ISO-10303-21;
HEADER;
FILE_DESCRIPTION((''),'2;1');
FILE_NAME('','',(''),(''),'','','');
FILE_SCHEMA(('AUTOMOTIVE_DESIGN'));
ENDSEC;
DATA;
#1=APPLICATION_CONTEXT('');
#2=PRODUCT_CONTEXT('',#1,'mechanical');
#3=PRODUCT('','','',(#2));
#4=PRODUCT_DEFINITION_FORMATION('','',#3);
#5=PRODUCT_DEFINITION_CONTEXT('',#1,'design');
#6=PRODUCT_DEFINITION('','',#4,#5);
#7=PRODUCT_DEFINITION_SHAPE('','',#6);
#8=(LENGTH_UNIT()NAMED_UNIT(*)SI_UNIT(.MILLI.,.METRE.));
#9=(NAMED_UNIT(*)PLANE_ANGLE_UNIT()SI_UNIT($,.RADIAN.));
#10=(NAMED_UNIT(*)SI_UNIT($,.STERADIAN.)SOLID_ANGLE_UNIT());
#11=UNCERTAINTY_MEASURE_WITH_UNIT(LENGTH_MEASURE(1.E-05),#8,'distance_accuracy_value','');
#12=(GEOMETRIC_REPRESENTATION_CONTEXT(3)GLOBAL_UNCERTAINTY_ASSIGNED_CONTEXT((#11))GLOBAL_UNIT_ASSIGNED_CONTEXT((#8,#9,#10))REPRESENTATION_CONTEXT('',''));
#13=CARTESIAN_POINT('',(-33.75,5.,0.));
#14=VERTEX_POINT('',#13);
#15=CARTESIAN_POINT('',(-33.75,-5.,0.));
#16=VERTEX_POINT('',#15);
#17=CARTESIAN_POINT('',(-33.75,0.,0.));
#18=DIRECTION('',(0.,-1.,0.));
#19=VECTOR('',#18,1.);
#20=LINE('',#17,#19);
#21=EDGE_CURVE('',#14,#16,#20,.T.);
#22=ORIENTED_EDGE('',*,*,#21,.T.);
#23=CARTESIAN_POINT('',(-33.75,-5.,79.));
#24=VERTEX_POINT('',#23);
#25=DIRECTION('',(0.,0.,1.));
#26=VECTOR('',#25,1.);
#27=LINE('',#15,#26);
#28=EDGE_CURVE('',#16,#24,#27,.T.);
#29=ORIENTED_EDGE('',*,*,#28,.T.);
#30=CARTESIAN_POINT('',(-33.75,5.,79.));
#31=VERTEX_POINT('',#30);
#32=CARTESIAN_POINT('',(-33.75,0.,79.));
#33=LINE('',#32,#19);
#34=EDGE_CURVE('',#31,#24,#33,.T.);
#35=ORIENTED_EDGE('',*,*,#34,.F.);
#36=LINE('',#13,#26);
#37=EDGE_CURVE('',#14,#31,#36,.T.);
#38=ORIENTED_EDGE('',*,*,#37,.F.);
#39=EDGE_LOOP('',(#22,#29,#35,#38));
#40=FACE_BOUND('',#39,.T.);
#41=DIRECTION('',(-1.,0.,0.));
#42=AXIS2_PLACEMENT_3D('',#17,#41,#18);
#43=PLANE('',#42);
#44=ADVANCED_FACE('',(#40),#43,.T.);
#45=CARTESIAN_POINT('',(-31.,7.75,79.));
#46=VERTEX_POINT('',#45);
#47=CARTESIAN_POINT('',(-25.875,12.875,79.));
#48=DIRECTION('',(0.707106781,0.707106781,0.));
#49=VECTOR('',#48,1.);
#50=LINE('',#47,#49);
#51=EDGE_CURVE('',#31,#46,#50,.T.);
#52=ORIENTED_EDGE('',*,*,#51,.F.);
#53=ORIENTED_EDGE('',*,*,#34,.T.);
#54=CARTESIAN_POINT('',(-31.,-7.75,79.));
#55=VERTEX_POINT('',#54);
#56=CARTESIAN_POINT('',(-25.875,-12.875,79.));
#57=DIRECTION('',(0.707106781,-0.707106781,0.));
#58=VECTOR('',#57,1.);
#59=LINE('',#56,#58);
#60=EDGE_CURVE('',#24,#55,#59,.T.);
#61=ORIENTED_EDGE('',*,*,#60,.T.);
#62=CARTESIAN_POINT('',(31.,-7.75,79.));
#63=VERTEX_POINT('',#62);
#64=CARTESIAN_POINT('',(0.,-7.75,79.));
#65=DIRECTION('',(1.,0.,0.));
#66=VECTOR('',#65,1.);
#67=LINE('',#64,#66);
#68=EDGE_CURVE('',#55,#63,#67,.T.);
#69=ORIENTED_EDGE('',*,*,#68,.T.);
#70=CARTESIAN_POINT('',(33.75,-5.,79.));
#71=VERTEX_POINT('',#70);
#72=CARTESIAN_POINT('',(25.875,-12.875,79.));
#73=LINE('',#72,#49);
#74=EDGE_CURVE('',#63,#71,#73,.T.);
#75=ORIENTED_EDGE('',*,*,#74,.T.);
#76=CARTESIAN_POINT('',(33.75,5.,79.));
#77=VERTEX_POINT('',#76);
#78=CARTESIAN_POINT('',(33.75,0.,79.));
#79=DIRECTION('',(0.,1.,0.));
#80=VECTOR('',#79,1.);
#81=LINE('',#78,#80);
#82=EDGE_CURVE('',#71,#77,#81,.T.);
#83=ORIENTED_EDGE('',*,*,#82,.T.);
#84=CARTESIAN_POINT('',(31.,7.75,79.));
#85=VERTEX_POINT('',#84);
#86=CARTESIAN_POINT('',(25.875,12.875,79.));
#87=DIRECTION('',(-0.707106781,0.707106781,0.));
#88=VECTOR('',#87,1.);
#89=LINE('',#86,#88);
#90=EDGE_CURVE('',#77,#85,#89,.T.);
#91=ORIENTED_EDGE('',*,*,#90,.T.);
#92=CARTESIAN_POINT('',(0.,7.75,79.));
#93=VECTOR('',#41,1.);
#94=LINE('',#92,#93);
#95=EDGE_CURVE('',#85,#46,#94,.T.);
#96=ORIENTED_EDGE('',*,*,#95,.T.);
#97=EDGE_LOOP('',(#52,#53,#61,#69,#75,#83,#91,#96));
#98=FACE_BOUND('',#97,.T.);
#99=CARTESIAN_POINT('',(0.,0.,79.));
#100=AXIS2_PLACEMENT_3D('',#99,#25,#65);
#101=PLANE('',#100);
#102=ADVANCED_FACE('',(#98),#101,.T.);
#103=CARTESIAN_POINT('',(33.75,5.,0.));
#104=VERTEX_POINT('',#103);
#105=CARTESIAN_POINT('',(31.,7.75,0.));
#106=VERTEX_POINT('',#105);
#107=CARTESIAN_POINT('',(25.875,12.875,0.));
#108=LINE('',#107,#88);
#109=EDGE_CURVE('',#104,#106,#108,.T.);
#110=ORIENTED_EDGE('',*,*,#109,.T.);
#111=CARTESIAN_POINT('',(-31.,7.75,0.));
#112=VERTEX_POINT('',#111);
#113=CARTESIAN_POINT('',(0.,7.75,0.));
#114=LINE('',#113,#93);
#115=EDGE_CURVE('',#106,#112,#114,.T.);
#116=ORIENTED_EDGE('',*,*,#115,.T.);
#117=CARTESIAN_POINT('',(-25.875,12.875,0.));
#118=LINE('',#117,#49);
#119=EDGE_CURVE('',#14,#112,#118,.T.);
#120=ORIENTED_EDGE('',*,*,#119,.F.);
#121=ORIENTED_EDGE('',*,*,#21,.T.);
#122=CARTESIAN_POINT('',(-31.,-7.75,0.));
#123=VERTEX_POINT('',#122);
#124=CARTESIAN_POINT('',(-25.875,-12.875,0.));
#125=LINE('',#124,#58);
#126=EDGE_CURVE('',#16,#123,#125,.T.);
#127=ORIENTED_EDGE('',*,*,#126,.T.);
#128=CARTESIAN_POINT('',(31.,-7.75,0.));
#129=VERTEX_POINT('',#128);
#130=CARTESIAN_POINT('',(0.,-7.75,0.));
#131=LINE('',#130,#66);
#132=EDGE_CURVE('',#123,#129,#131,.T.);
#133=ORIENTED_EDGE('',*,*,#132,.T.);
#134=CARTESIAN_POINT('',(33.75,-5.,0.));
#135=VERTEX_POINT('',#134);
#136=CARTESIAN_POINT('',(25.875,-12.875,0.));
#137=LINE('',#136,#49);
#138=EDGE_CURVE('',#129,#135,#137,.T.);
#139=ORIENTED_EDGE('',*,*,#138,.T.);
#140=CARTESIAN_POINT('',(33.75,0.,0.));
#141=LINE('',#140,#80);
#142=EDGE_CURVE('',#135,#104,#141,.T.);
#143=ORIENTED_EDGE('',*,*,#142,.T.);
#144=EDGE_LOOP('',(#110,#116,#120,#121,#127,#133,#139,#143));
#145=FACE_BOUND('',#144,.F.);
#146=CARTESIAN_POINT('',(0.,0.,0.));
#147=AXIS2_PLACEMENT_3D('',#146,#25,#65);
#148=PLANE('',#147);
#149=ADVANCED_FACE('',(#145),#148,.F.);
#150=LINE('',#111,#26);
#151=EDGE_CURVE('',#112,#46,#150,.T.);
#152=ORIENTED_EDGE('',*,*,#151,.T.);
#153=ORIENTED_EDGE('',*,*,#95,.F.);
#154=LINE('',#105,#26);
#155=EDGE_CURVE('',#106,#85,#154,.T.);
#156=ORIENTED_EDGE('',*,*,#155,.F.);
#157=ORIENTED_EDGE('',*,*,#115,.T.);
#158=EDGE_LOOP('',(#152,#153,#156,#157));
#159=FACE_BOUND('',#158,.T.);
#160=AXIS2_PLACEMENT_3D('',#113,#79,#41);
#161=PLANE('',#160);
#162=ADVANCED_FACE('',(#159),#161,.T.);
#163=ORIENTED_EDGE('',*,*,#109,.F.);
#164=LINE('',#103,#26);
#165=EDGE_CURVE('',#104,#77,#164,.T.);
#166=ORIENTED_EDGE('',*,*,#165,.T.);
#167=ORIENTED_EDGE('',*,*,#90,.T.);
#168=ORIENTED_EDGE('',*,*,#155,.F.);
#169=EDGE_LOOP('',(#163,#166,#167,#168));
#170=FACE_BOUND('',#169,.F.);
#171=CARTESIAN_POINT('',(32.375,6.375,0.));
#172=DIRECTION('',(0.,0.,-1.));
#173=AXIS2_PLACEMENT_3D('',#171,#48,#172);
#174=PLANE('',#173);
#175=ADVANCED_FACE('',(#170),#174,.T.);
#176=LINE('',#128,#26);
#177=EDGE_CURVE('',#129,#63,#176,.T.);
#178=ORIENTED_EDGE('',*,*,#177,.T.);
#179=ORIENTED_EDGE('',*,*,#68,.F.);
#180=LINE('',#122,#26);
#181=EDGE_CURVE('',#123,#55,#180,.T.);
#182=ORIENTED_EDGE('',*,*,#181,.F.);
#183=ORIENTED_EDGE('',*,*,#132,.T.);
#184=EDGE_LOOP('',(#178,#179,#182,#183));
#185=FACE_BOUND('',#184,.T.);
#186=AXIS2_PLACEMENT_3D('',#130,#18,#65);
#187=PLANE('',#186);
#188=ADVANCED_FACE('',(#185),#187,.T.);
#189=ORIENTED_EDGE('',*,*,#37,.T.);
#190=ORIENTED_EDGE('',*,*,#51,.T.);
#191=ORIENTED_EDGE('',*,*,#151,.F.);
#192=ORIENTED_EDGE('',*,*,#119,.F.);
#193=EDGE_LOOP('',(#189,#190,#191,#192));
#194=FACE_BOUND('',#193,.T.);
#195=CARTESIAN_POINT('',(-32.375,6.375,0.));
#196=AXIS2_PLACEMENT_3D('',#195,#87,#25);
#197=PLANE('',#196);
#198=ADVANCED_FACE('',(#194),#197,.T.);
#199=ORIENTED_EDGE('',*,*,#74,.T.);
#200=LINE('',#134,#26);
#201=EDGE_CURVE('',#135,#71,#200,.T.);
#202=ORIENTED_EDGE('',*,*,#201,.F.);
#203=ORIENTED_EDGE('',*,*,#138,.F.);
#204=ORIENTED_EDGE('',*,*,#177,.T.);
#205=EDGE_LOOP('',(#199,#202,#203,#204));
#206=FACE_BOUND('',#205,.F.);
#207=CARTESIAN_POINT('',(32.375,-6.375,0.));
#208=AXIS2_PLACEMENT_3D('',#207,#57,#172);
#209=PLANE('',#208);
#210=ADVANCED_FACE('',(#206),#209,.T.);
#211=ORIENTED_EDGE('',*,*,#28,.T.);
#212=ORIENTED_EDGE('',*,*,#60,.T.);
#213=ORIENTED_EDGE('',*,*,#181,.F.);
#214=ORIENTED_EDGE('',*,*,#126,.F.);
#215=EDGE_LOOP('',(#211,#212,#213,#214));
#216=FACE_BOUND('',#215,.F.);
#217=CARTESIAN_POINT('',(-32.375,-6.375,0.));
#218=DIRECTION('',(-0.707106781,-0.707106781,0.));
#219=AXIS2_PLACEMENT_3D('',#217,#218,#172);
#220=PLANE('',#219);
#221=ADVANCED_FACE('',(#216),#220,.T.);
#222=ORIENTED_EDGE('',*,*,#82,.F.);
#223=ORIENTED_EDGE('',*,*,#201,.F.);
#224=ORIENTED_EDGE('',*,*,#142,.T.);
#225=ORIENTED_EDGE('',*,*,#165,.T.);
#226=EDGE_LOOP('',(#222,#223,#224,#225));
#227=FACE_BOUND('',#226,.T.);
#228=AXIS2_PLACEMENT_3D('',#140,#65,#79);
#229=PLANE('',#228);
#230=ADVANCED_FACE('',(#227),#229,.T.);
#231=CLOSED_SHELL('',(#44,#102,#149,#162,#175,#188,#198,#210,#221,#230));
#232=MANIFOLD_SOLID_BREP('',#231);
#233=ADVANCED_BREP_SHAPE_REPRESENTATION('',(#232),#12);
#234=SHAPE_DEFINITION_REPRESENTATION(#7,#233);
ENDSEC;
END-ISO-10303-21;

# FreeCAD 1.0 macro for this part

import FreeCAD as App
import Part
import Sketcher
from FreeCAD import Vector
Q = App.Units.Quantity


def edges_at(feature, points):
    """Names of the edges that pass closest to the given points."""
    edges = feature.Shape.Edges
    near = lambda p: min(range(len(edges)), key=lambda i: edges[i].distToShape(Part.Vertex(*p))[0])
    return sorted({f"Edge{near(p) + 1}" for p in points})


def add_polygon(sketch, points):
    """Adds a closed chain of lines whose ends are joined by coincident constraints."""
    first, n = sketch.GeometryCount, len(points)
    for a, b in zip(points, points[1:] + points[:1]):
        sketch.addGeometry(Part.LineSegment(App.Vector(*a, 0), App.Vector(*b, 0)), False)
    for i in range(n):
        sketch.addConstraint(Sketcher.Constraint("Coincident", first + i, 2, first + (i + 1) % n, 1))

doc = App.newDocument("Part")
params = doc.addObject("Spreadsheet::Sheet", "Params")
for row, (alias, value) in enumerate([
    ("sketch1_width", "67.5 mm"),
    ("sketch1_height", "15.5 mm"),
    ("sketch2_height", "79 mm"),
    ("chamfer_size", "2.75 mm"),
], start=1):
    params.set(f"A{row}", alias)
    params.set(f"B{row}", "=" + value)
    params.setAlias(f"B{row}", alias)

body = doc.addObject("PartDesign::Body", "Body")

# Sketch on XY plane
sketch1 = body.newObject("Sketcher::SketchObject", "Sketch")
sketch1.AttachmentSupport = (doc.getObject("XY_Plane"), [""])
sketch1.MapMode = "FlatFace"
add_polygon(sketch1, [(-34, 8), (-34, -8), (34, -8), (34, 8)])  # lines 0-3
sketch1.addConstraint([
    Sketcher.Constraint("Vertical", 0),
    Sketcher.Constraint("Horizontal", 1),
    Sketcher.Constraint("Vertical", 2),
    Sketcher.Constraint("Horizontal", 3),
    Sketcher.Constraint("Symmetric", 0, 2, 2, 2, -1, 1),
    Sketcher.Constraint("DistanceX", 1, 1, 1, 2, Q("67.5 mm")),
    Sketcher.Constraint("DistanceY", 0, 2, 0, 1, Q("15.5 mm")),
])
sketch1.setExpression("Constraints[9]", "Params.sketch1_width")
sketch1.setExpression("Constraints[10]", "Params.sketch1_height")

# Sketch on XZ plane
sketch2 = body.newObject("Sketcher::SketchObject", "Sketch001")
sketch2.AttachmentSupport = (doc.getObject("XZ_Plane"), [""])
sketch2.MapMode = "FlatFace"
sketch2.addGeometry(Part.LineSegment(Vector(0, 0, 0), Vector(0, 79, 0)), False)
sketch2.addConstraint([
    Sketcher.Constraint("Vertical", 0),
    Sketcher.Constraint("Coincident", 0, 1, -1, 1),
    Sketcher.Constraint("DistanceY", 0, 1, 0, 2, Q("79 mm")),
])
sketch2.setExpression("Constraints[2]", "Params.sketch2_height")
doc.recompute()

additivepipe = body.newObject("PartDesign::AdditivePipe", "AdditivePipe")
additivepipe.Profile = sketch1
additivepipe.Spine = (sketch2, ["Edge1"])
doc.recompute()

chamfer = body.newObject("PartDesign::Chamfer", "Chamfer")
chamfer.Base = (additivepipe, edges_at(additivepipe, [
    (33.75, -7.75, 39.5),
    (33.75, 7.75, 39.5),
    (-33.75, -7.75, 39.5),
    (-33.75, 7.75, 39.5),
]))
chamfer.setExpression("Size", "Params.chamfer_size")

doc.recompute()
